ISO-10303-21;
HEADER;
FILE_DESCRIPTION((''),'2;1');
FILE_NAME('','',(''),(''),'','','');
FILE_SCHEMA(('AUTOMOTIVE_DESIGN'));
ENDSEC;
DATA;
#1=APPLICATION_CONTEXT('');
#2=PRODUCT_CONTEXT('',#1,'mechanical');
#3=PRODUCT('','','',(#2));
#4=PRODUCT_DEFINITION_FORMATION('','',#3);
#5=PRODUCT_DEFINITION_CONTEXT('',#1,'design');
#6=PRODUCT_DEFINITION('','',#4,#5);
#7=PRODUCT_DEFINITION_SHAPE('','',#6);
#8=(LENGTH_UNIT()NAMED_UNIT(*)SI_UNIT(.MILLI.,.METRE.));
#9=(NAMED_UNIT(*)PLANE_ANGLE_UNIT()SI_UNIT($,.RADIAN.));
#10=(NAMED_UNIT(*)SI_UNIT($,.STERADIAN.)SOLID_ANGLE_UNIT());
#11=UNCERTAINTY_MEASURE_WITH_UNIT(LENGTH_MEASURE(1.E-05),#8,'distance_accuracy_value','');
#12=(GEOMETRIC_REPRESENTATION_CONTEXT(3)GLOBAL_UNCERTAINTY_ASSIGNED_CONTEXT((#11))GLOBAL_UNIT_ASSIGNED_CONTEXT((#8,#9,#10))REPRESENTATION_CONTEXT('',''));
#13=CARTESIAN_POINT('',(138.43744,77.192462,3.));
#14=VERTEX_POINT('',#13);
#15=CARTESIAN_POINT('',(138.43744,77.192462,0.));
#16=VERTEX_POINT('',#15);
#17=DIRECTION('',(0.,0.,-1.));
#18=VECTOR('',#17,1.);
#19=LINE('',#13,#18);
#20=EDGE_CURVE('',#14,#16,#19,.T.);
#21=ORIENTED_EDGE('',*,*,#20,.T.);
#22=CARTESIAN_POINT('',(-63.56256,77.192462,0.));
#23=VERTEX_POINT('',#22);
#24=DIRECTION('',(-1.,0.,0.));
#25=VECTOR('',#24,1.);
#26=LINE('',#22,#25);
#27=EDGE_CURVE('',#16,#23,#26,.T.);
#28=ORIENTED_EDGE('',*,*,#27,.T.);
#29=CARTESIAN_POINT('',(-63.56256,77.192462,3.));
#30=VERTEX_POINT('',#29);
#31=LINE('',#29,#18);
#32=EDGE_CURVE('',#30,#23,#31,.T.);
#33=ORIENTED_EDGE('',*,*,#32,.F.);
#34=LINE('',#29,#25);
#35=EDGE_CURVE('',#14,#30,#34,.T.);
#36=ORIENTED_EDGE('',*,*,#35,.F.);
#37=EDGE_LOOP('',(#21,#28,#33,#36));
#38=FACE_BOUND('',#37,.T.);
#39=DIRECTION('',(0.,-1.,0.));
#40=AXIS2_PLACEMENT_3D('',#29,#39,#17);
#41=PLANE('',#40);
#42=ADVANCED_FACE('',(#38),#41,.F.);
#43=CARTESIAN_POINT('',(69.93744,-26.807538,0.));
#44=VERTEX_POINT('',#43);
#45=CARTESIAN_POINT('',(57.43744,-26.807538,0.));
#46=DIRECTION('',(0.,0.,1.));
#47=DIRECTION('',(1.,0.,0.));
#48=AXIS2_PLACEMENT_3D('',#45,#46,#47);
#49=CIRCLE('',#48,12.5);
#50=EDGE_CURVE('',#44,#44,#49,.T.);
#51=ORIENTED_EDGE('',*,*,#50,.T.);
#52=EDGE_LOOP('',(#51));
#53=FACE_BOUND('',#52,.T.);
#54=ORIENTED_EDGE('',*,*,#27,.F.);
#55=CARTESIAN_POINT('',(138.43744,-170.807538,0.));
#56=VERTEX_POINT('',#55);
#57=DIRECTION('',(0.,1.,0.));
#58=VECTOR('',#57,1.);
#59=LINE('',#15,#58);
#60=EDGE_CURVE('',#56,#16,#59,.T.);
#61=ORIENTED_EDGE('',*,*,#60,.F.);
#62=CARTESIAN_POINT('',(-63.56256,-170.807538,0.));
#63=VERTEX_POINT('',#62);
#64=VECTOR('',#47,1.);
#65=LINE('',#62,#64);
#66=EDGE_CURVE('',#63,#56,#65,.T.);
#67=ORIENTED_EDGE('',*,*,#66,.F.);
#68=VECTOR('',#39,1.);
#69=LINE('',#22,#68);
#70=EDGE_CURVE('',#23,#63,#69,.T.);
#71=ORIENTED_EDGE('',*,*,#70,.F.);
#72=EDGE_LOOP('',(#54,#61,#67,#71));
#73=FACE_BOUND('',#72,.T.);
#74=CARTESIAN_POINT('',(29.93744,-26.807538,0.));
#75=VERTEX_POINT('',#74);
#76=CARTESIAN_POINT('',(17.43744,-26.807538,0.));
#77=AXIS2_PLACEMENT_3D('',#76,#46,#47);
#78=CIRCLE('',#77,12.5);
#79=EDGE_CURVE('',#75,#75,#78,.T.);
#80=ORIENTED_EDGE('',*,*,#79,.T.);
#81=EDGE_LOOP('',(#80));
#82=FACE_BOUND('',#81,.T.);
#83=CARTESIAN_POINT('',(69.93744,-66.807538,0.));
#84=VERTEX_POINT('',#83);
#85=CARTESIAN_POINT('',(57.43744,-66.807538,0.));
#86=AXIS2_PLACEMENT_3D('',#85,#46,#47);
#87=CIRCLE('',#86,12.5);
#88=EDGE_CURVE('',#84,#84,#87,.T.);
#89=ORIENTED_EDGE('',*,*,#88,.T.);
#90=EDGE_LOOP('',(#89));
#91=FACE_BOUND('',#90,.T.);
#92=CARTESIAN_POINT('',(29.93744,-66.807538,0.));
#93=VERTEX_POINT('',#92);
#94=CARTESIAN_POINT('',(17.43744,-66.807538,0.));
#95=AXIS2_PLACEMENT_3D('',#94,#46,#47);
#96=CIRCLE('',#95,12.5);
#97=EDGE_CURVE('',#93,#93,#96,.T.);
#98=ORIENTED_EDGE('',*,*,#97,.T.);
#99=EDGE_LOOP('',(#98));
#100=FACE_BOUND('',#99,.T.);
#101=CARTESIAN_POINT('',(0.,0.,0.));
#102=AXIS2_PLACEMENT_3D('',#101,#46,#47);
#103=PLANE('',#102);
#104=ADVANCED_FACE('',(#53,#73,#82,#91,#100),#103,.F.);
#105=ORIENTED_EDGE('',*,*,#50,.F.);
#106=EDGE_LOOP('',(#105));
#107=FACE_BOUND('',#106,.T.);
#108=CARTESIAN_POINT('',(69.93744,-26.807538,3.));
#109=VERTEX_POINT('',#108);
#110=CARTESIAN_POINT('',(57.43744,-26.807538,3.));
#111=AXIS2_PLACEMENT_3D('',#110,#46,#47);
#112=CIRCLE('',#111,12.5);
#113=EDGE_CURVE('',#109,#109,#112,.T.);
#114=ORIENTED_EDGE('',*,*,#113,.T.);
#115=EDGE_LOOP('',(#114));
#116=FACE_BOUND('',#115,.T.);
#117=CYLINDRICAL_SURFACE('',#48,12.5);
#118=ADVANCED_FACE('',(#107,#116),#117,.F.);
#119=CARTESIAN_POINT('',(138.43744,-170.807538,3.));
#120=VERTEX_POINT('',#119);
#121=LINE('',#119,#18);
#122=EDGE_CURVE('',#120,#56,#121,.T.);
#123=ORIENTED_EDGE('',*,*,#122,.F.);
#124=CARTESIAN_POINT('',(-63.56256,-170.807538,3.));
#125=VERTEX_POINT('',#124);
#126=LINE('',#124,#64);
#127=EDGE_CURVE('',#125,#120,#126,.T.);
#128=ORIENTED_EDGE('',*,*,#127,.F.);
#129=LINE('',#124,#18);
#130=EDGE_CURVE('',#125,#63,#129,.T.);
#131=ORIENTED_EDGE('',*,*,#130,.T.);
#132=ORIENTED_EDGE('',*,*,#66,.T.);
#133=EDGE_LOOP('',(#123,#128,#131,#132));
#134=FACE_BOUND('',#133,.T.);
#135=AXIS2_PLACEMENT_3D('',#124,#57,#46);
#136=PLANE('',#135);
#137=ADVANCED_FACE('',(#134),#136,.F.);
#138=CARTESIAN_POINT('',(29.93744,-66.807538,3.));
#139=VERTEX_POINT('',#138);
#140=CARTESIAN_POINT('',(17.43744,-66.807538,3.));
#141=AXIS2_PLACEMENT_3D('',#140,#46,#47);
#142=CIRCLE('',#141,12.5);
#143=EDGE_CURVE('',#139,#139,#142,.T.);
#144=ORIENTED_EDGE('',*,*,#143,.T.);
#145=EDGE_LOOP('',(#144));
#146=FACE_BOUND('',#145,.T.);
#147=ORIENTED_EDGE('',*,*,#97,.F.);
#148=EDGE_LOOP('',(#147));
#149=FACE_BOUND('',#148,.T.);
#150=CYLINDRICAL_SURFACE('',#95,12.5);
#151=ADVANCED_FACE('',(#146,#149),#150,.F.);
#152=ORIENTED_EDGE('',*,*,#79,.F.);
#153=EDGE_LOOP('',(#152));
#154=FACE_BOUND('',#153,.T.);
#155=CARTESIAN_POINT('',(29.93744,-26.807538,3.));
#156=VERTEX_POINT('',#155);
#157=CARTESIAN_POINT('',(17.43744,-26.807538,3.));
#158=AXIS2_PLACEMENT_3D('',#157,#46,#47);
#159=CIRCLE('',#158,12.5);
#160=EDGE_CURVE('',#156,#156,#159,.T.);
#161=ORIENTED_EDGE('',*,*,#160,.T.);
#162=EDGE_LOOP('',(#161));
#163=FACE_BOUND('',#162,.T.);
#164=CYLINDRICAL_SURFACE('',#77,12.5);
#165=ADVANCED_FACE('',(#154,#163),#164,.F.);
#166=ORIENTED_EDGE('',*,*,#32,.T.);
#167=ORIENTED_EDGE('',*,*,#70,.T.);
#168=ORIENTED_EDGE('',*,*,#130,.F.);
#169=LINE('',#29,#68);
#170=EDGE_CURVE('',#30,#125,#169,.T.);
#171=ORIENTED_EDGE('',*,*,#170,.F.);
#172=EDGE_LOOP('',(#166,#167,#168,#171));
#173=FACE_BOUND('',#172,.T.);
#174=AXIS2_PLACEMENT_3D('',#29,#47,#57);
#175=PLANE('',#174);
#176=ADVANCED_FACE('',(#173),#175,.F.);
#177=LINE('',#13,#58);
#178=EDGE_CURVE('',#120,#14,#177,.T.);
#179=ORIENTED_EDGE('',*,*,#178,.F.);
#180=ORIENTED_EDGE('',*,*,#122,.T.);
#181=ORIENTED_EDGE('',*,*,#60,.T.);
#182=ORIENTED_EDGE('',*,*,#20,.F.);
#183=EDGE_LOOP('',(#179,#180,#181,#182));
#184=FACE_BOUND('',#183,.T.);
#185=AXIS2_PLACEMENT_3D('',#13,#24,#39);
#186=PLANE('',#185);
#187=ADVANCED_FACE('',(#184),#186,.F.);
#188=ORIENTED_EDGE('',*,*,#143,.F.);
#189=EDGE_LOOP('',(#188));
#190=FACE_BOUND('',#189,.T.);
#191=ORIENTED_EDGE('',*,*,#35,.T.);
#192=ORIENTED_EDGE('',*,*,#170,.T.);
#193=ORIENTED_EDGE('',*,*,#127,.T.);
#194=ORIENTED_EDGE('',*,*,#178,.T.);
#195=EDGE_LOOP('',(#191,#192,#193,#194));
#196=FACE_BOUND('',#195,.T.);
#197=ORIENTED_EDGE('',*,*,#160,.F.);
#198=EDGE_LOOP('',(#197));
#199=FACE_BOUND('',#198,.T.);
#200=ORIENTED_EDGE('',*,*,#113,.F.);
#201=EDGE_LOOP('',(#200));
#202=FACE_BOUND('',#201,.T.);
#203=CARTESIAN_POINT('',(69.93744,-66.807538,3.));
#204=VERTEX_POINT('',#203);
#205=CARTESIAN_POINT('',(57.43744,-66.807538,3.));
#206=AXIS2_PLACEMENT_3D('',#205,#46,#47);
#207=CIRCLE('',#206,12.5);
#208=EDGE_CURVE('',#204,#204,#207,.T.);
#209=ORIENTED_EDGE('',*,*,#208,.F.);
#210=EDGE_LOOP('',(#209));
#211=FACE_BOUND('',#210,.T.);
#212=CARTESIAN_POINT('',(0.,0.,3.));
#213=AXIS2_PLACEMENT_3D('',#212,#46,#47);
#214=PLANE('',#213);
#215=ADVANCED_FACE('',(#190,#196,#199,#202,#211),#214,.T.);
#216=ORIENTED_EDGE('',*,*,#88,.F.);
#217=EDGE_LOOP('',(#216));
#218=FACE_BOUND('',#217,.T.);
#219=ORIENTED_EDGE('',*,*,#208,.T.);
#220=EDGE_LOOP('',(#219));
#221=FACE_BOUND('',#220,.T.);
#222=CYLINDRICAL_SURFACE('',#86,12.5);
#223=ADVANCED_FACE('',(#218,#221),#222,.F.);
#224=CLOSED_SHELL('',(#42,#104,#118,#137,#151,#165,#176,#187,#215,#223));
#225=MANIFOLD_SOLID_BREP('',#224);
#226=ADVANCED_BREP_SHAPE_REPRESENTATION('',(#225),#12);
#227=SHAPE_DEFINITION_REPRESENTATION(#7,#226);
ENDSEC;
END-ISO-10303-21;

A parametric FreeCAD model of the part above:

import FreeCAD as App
import Part
import Sketcher

V = App.Vector

doc = App.newDocument("Part")
body = doc.addObject("PartDesign::Body", "Body")

# Sketch on XY plane
sketch1 = doc.addObject("Sketcher::SketchObject", "Sketch")
body.addObject(sketch1)
sketch1.AttachmentSupport = (doc.XY_Plane, [""])
sketch1.MapMode = "FlatFace"
sketch1.addGeometry(Part.LineSegment(V(-63.56256, 77.192462, 0), V(-63.56256, -170.807538, 0)), False)
sketch1.addGeometry(Part.LineSegment(V(-63.56256, -170.807538, 0), V(138.43744, -170.807538, 0)), False)
sketch1.addGeometry(Part.LineSegment(V(138.43744, -170.807538, 0), V(138.43744, 77.192462, 0)), False)
sketch1.addGeometry(Part.LineSegment(V(138.43744, 77.192462, 0), V(-63.56256, 77.192462, 0)), False)
sketch1.addConstraint(Sketcher.Constraint("Coincident", 0, 2, 1, 1))
sketch1.addConstraint(Sketcher.Constraint("Coincident", 1, 2, 2, 1))
sketch1.addConstraint(Sketcher.Constraint("Coincident", 2, 2, 3, 1))
sketch1.addConstraint(Sketcher.Constraint("Coincident", 3, 2, 0, 1))
sketch1.addConstraint(Sketcher.Constraint("Vertical", 0))
sketch1.addConstraint(Sketcher.Constraint("Horizontal", 1))
sketch1.addConstraint(Sketcher.Constraint("Vertical", 2))
sketch1.addConstraint(Sketcher.Constraint("Horizontal", 3))
sketch1.addConstraint(Sketcher.Constraint("DistanceX", 1, 1, 1, 2, 202.0))
sketch1.addConstraint(Sketcher.Constraint("DistanceY", 0, 2, 0, 1, 248.0))
sketch1.addConstraint(Sketcher.Constraint("DistanceX", 0, 2, -1, 1, 63.56256))
sketch1.addConstraint(Sketcher.Constraint("DistanceY", 0, 2, -1, 1, 170.807538))
pad1 = doc.addObject("PartDesign::Pad", "Pad")
body.addObject(pad1)
pad1.Profile = sketch1
pad1.Length = 3

# Sketch on XY plane
sketch2 = doc.addObject("Sketcher::SketchObject", "Sketch001")
body.addObject(sketch2)
sketch2.AttachmentSupport = (doc.XY_Plane, [""])
sketch2.MapMode = "FlatFace"
sketch2.AttachmentOffset = App.Placement(V(0, 0, 3), App.Rotation())
sketch2.addGeometry(Part.Circle(V(17.43744, -26.807538, 0), V(0, 0, 1), 12.5), False)
sketch2.addGeometry(Part.Circle(V(57.43744, -26.807538, 0), V(0, 0, 1), 12.5), False)
sketch2.addGeometry(Part.Circle(V(57.43744, -66.807538, 0), V(0, 0, 1), 12.5), False)
sketch2.addGeometry(Part.Circle(V(17.43744, -66.807538, 0), V(0, 0, 1), 12.5), False)
sketch2.addConstraint(Sketcher.Constraint("Equal", 0, 1))
sketch2.addConstraint(Sketcher.Constraint("Equal", 1, 2))
sketch2.addConstraint(Sketcher.Constraint("Equal", 2, 3))
sketch2.addConstraint(Sketcher.Constraint("Horizontal", 0, 3, 1, 3))
sketch2.addConstraint(Sketcher.Constraint("Horizontal", 2, 3, 3, 3))
sketch2.addConstraint(Sketcher.Constraint("Vertical", 1, 3, 2, 3))
sketch2.addConstraint(Sketcher.Constraint("Vertical", 0, 3, 3, 3))
sketch2.addConstraint(Sketcher.Constraint("Diameter", 0, 25.0))
sketch2.addConstraint(Sketcher.Constraint("DistanceX", 0, 3, 1, 3, 40.0))
sketch2.addConstraint(Sketcher.Constraint("DistanceY", 2, 3, 1, 3, 40.0))
sketch2.addConstraint(Sketcher.Constraint("DistanceX", -1, 1, 0, 3, 17.43744))
sketch2.addConstraint(Sketcher.Constraint("DistanceY", 0, 3, -1, 1, 26.807538))
pocket1 = doc.addObject("PartDesign::Pocket", "Pocket")
body.addObject(pocket1)
pocket1.Profile = sketch2
pocket1.Length = 3

doc.recompute()
